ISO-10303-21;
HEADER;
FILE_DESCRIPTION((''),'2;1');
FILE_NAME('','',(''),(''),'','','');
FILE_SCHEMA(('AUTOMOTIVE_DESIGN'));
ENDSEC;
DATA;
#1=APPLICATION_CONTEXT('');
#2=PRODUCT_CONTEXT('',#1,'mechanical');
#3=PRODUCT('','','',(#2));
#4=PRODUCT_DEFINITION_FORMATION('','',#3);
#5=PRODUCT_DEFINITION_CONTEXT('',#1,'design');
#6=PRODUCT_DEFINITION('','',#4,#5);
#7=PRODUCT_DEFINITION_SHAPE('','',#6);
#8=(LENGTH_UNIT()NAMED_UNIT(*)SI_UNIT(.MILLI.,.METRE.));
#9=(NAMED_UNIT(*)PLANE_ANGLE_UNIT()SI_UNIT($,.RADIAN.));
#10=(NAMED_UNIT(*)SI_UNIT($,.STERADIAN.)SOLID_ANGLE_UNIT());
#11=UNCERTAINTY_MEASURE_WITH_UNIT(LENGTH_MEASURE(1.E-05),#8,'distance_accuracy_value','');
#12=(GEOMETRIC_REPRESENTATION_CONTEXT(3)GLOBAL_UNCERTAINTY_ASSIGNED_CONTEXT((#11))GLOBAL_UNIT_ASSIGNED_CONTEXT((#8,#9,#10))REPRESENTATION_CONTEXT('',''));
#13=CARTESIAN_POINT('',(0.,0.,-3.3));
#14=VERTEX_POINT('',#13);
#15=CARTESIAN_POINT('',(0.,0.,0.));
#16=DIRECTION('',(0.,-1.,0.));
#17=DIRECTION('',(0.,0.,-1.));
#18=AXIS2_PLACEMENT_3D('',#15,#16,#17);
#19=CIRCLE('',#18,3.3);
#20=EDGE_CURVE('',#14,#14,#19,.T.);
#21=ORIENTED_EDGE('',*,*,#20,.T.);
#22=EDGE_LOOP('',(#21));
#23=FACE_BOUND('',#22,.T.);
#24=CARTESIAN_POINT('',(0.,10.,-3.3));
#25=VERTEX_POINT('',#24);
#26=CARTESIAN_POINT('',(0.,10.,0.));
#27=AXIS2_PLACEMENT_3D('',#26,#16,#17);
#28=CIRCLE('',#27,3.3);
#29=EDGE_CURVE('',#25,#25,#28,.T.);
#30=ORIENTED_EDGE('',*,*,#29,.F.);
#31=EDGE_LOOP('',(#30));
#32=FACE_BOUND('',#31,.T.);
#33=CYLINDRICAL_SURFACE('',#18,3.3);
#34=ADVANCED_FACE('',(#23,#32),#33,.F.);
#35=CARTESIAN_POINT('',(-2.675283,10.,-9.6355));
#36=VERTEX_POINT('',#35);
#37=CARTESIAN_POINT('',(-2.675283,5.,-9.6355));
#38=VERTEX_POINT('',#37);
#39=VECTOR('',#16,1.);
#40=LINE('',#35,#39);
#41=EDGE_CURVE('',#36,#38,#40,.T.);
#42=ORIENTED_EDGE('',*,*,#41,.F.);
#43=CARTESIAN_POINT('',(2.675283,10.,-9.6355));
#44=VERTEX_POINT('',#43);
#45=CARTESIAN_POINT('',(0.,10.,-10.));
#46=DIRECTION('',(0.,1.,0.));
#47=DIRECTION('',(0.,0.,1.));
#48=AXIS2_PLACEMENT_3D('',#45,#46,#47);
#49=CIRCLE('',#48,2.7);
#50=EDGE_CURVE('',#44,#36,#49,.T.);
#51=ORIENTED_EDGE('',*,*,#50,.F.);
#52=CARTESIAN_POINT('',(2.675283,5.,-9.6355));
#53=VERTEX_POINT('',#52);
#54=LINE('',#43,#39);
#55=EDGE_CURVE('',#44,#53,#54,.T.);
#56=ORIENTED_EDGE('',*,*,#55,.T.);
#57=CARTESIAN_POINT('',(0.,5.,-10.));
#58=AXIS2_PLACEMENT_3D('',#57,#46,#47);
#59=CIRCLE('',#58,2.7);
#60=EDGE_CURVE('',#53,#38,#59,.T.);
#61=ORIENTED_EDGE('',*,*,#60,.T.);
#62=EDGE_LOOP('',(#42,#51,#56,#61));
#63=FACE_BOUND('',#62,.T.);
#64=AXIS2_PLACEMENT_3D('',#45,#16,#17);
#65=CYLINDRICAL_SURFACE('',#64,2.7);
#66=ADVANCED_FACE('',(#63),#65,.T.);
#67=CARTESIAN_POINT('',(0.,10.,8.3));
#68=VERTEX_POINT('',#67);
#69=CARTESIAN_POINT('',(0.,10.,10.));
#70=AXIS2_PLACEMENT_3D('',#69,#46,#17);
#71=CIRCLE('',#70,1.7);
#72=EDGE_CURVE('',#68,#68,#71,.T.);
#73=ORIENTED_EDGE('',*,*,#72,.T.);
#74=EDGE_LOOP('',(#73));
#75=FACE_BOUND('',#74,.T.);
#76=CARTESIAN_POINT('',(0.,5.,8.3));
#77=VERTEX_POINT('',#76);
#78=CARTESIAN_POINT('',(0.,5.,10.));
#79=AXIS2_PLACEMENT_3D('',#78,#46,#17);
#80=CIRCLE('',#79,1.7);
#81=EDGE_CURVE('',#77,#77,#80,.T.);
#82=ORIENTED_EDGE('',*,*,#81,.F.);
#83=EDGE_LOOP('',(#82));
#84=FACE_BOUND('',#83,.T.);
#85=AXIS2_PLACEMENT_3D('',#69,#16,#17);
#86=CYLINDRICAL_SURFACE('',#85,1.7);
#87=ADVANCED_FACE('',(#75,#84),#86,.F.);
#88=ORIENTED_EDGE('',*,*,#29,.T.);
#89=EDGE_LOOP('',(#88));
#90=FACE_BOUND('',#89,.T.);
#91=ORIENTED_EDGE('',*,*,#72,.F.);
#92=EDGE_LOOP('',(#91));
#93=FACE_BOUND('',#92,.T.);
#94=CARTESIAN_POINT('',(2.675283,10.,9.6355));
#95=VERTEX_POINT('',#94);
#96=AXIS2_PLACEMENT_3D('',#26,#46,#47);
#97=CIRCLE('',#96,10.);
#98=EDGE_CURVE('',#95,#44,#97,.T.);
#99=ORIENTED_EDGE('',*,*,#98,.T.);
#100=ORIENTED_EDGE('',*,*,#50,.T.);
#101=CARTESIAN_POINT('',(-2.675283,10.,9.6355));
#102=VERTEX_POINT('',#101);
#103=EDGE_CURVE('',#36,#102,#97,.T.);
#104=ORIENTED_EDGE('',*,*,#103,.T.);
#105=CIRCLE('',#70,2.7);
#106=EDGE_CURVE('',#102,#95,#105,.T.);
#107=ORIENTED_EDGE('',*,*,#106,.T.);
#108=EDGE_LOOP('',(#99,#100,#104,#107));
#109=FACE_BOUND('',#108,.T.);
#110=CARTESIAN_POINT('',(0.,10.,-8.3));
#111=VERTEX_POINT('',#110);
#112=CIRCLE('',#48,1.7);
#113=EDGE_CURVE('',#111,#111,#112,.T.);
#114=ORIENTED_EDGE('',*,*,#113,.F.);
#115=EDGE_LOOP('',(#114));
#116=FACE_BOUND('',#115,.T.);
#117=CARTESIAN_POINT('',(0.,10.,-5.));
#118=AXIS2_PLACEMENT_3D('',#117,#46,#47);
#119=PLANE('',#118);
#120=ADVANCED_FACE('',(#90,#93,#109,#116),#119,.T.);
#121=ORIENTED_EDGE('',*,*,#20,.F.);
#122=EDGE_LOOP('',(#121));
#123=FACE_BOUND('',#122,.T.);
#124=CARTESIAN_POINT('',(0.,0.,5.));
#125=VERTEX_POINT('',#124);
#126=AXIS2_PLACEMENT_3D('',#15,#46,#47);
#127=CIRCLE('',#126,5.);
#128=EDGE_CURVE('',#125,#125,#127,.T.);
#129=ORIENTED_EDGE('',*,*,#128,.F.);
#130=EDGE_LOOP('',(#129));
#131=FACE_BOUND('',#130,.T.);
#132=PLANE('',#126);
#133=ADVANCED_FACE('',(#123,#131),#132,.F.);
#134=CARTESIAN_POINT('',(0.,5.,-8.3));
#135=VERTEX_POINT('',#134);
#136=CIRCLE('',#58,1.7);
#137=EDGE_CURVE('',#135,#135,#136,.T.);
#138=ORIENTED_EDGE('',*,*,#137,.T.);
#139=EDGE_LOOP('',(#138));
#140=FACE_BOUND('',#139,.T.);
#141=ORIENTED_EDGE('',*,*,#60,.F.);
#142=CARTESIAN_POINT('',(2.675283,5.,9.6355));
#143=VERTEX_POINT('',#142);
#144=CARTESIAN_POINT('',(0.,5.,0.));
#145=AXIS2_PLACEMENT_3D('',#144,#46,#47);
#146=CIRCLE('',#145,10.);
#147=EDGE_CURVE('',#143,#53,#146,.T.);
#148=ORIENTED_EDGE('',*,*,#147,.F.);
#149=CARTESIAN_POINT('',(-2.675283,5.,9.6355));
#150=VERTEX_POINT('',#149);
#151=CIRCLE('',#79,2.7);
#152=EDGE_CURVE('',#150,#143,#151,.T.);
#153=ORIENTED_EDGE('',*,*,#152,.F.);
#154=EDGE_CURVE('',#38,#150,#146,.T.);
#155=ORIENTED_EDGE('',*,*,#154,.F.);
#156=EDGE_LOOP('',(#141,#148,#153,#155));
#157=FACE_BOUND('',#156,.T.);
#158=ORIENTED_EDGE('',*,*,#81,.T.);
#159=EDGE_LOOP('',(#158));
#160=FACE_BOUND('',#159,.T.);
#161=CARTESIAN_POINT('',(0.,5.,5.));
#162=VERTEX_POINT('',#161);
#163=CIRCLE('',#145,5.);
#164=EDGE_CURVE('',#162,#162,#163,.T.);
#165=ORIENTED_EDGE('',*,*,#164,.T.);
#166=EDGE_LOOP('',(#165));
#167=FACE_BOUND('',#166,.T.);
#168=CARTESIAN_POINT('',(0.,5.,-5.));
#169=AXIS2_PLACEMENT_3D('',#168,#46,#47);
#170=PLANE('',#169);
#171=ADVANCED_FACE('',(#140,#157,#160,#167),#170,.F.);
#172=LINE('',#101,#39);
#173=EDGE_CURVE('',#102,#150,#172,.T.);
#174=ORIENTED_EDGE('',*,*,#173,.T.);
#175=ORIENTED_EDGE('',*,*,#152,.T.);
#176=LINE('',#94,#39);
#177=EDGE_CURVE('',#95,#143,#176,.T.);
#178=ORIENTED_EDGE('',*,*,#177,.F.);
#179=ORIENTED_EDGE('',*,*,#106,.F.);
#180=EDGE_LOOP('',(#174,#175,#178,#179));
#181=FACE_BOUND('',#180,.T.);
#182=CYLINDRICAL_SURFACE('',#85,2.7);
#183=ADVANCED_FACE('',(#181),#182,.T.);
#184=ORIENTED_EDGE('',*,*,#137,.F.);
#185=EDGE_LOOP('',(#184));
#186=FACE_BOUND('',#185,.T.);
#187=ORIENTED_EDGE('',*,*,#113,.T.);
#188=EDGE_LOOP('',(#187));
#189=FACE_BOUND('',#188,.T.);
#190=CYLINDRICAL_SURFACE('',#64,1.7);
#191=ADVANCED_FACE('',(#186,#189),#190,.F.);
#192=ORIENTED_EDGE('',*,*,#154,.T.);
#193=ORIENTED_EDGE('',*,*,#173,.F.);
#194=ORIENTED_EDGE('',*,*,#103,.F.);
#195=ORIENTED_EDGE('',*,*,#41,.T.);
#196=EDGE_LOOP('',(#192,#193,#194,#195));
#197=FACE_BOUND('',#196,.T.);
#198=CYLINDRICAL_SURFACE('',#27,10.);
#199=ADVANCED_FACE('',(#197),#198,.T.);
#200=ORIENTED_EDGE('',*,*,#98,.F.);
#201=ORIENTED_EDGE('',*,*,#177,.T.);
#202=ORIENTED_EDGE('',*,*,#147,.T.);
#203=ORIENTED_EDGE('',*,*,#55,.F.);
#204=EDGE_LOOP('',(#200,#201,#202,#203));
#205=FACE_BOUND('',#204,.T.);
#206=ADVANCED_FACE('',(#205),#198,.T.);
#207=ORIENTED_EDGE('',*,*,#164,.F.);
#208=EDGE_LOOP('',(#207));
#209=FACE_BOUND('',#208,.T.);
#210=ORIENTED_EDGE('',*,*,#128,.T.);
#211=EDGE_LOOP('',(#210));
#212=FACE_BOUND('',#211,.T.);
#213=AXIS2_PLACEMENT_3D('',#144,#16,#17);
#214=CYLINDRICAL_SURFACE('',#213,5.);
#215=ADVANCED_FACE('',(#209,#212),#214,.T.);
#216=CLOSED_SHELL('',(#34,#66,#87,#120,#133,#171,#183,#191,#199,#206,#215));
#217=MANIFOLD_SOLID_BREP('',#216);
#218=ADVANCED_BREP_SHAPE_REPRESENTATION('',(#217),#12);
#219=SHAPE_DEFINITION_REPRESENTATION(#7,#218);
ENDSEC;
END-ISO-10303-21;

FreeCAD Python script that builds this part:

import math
import FreeCAD as App
import Part
import Sketcher

doc = App.newDocument("Part")
body = doc.addObject("PartDesign::Body", "Body")

# Sketch on XZ plane
sketch1 = body.newObject("Sketcher::SketchObject", "Sketch")
sketch1.AttachmentSupport = (doc.getObject("XZ_Plane"), [""])
sketch1.MapMode = "FlatFace"
sketch1.addGeometry(Part.Circle(App.Vector(0, 0, 0), App.Vector(0, 0, 1), 5), False)
sketch1.addConstraint([
    Sketcher.Constraint("Coincident", 0, 3, -1, 1),
    Sketcher.Constraint("Diameter", 0, 10.0),
])
pad1 = body.newObject("PartDesign::Pad", "Pad")
pad1.Profile = sketch1
pad1.Length = 5
pad1.Reversed = True

# Sketch on XZ plane
sketch2 = body.newObject("Sketcher::SketchObject", "Sketch001")
sketch2.AttachmentSupport = (doc.getObject("XZ_Plane"), [""])
sketch2.MapMode = "FlatFace"
sketch2.AttachmentOffset = App.Placement(App.Vector(0, 0, -5), App.Rotation())
sketch2.addGeometry([
    Part.ArcOfCircle(Part.Circle(App.Vector(0, 0, 0), App.Vector(0, 0, 1), 10), math.radians(106), math.radians(254)),  # 0
    Part.ArcOfCircle(Part.Circle(App.Vector(0, 10, 0), App.Vector(0, 0, 1), 2.7), math.radians(-8), math.radians(188)),  # 1
    Part.ArcOfCircle(Part.Circle(App.Vector(0, 0, 0), App.Vector(0, 0, 1), 10), math.radians(-74), math.radians(74)),  # 2
    Part.ArcOfCircle(Part.Circle(App.Vector(0, -10, 0), App.Vector(0, 0, 1), 2.7), math.radians(172), math.radians(368)),  # 3
    Part.Circle(App.Vector(0, 10, 0), App.Vector(0, 0, 1), 1.7),  # 4
    Part.Circle(App.Vector(0, -10, 0), App.Vector(0, 0, 1), 1.7),  # 5
], False)
sketch2.addConstraint([
    Sketcher.Constraint("Coincident", 0, 1, 1, 2),
    Sketcher.Constraint("Coincident", 1, 1, 2, 2),
    Sketcher.Constraint("Coincident", 2, 1, 3, 2),
    Sketcher.Constraint("Coincident", 3, 1, 0, 2),
    Sketcher.Constraint("Coincident", 0, 3, -1, 1),
    Sketcher.Constraint("Coincident", 2, 3, -1, 1),
    Sketcher.Constraint("Coincident", 4, 3, 1, 3),
    Sketcher.Constraint("Coincident", 5, 3, 3, 3),
    Sketcher.Constraint("Equal", 0, 2),
    Sketcher.Constraint("Equal", 1, 3),
    Sketcher.Constraint("Equal", 4, 5),
    Sketcher.Constraint("Symmetric", 1, 3, 3, 3, -1, 1),
    Sketcher.Constraint("PointOnObject", 1, 3, -2),
    Sketcher.Constraint("Radius", 0, 10.0),
    Sketcher.Constraint("Diameter", 4, 3.4),
    Sketcher.Constraint("Radius", 1, 2.7),
    Sketcher.Constraint("DistanceY", -1, 1, 1, 3, 10.0),
])
pad2 = body.newObject("PartDesign::Pad", "Pad001")
pad2.Profile = sketch2
pad2.Length = 5
pad2.Reversed = True

# Sketch on XZ plane
sketch3 = body.newObject("Sketcher::SketchObject", "Sketch002")
sketch3.AttachmentSupport = (doc.getObject("XZ_Plane"), [""])
sketch3.MapMode = "FlatFace"
sketch3.addGeometry(Part.Circle(App.Vector(0, 0, 0), App.Vector(0, 0, 1), 3.3), False)
sketch3.addConstraint([
    Sketcher.Constraint("Coincident", 0, 3, -1, 1),
    Sketcher.Constraint("Diameter", 0, 6.6),
])
doc.recompute()
hole = body.newObject("PartDesign::Hole", "Hole")
hole.Profile = sketch3
hole.ThreadType = "None"
hole.Diameter = 6.6
hole.DepthType = "ThroughAll"

doc.recompute()
